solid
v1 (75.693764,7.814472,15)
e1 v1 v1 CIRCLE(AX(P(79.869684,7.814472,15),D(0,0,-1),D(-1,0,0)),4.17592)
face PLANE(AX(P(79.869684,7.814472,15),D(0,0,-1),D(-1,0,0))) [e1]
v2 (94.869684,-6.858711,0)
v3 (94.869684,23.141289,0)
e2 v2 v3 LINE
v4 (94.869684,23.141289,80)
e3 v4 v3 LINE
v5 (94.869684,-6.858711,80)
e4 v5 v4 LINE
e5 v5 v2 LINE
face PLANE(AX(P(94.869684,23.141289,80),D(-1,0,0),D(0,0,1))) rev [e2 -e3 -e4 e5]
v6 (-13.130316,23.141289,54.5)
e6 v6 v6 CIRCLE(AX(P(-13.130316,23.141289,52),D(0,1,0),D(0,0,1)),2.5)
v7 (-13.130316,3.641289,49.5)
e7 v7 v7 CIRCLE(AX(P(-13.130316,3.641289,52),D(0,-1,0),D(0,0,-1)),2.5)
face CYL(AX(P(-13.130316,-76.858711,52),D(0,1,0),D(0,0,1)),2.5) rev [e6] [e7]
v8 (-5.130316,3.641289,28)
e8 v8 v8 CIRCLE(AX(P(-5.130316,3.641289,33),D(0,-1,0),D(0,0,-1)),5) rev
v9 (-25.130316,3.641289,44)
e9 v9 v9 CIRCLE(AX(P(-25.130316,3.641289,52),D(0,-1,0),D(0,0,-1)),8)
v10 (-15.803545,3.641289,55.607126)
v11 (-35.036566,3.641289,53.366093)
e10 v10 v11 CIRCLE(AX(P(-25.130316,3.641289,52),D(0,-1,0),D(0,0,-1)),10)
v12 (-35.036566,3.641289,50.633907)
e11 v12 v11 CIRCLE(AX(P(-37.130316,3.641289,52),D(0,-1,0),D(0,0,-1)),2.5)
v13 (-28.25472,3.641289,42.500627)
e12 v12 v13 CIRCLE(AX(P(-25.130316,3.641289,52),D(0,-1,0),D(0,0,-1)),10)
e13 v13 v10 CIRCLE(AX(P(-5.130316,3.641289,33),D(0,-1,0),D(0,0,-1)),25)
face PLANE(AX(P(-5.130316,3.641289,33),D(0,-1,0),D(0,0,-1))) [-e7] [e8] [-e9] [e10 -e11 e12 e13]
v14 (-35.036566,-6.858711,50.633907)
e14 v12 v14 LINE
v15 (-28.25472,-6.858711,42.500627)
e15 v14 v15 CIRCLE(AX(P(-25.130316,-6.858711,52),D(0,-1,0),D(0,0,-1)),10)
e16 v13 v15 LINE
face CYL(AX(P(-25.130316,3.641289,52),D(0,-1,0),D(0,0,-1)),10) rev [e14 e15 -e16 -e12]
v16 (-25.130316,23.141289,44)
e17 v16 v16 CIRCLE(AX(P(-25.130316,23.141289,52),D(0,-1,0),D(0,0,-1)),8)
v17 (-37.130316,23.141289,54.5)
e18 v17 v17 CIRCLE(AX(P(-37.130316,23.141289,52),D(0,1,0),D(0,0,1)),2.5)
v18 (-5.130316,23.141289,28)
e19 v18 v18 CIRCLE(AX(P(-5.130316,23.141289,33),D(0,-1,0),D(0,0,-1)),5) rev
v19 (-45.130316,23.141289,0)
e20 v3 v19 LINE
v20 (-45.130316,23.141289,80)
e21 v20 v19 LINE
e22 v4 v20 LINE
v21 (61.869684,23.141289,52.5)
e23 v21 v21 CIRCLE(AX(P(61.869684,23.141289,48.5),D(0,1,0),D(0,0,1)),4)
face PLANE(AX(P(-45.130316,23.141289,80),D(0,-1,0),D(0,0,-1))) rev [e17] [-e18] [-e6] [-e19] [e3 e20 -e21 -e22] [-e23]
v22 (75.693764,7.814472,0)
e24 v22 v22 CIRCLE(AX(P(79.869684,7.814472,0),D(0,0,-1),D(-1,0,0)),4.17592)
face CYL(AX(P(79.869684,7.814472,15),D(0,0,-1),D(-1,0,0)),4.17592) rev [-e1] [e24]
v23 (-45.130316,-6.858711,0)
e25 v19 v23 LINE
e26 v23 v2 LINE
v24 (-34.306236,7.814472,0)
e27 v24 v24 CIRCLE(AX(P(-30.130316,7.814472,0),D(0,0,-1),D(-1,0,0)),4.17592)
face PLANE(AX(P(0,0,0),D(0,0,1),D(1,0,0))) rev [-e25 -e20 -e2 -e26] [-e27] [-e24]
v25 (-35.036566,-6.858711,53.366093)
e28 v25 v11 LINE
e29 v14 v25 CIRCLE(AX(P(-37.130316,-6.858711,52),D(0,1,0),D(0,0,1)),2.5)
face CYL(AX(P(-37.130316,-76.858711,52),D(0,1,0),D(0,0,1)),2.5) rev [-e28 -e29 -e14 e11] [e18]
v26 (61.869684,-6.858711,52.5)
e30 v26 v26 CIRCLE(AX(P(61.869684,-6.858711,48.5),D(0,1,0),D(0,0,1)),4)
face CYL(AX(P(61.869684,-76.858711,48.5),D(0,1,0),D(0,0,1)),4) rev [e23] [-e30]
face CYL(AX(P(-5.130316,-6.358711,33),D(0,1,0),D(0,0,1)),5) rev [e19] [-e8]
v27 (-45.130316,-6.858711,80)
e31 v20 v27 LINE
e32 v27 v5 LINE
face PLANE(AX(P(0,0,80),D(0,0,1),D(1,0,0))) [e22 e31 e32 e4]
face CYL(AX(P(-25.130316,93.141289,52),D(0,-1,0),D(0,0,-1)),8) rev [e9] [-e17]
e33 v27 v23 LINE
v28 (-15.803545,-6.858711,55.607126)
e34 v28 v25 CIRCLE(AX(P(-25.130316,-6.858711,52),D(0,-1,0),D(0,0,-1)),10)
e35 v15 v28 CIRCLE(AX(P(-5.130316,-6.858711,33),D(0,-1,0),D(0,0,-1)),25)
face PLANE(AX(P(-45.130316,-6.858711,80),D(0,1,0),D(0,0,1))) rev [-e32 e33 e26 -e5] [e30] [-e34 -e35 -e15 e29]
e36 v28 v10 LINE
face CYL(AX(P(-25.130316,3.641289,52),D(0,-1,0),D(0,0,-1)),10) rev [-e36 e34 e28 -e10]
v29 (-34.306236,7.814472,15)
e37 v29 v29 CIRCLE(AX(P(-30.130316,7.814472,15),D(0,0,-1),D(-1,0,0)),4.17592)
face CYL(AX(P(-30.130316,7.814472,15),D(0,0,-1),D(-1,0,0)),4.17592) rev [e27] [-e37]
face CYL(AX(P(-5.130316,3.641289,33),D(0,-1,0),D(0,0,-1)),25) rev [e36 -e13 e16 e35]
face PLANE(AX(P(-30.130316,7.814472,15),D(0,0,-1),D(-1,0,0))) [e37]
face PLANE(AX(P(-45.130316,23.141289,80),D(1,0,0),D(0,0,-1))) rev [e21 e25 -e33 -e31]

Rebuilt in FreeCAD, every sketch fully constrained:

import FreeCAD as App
import Part
import Sketcher
from FreeCAD import Vector
Q = App.Units.Quantity

doc = App.newDocument("Part")
body = doc.addObject("PartDesign::Body", "Body")

# Sketch on XY plane
sketch1 = body.newObject("Sketcher::SketchObject", "Sketch")
sketch1.AttachmentSupport = (doc.getObject("XY_Plane"), [""])
sketch1.MapMode = "FlatFace"
sketch1.addGeometry(Part.LineSegment(Vector(-45, 23, 0), Vector(-45, -7, 0)), False)
sketch1.addGeometry(Part.LineSegment(Vector(-45, -7, 0), Vector(95, -7, 0)), False)
sketch1.addGeometry(Part.LineSegment(Vector(95, -7, 0), Vector(95, 23, 0)), False)
sketch1.addGeometry(Part.LineSegment(Vector(95, 23, 0), Vector(-45, 23, 0)), False)
sketch1.addConstraint(Sketcher.Constraint("Coincident", 0, 2, 1, 1))
sketch1.addConstraint(Sketcher.Constraint("Coincident", 1, 2, 2, 1))
sketch1.addConstraint(Sketcher.Constraint("Coincident", 2, 2, 3, 1))
sketch1.addConstraint(Sketcher.Constraint("Coincident", 3, 2, 0, 1))
sketch1.addConstraint(Sketcher.Constraint("Vertical", 0))
sketch1.addConstraint(Sketcher.Constraint("Horizontal", 1))
sketch1.addConstraint(Sketcher.Constraint("Vertical", 2))
sketch1.addConstraint(Sketcher.Constraint("Horizontal", 3))
sketch1.addConstraint(Sketcher.Constraint("DistanceX", 1, 1, 1, 2, Q("140 mm")))
sketch1.addConstraint(Sketcher.Constraint("DistanceY", 0, 2, 0, 1, Q("30 mm")))
sketch1.addConstraint(Sketcher.Constraint("DistanceY", 0, 2, -1, 1, Q("6.858711 mm")))
sketch1.addConstraint(Sketcher.Constraint("DistanceX", 0, 2, -1, 1, Q("45.130316 mm")))
pad1 = body.newObject("PartDesign::Pad", "Pad")
pad1.Profile = sketch1
pad1.Length = 80

# Sketch on XY plane
sketch2 = body.newObject("Sketcher::SketchObject", "Sketch001")
sketch2.AttachmentSupport = (doc.getObject("XY_Plane"), [""])
sketch2.MapMode = "FlatFace"
sketch2.addGeometry(Part.Circle(Vector(-30.1, 7.8, 0), Vector(0, 0, 1), 4.2), False)
sketch2.addConstraint(Sketcher.Constraint("Diameter", 0, Q("8.35184 mm")))
sketch2.addConstraint(Sketcher.Constraint("DistanceY", -1, 1, 0, 3, Q("7.814472 mm")))
sketch2.addConstraint(Sketcher.Constraint("DistanceX", 0, 3, -1, 1, Q("30.130316 mm")))
pocket1 = body.newObject("PartDesign::Pocket", "Pocket")
pocket1.Profile = sketch2
pocket1.Length = 15
pocket1.Reversed = True
doc.recompute()

linearpattern = body.newObject("PartDesign::LinearPattern", "LinearPattern")
linearpattern.Originals = [pocket1]
linearpattern.Direction = (doc.getObject("X_Axis"), [""])
linearpattern.Mode = "offset"
linearpattern.Offset = 110
linearpattern.Occurrences = 4
body.Tip = linearpattern

# Sketch on XZ plane
sketch3 = body.newObject("Sketcher::SketchObject", "Sketch002")
sketch3.AttachmentSupport = (doc.getObject("XZ_Plane"), [""])
sketch3.MapMode = "FlatFace"
sketch3.AttachmentOffset = App.Placement(Vector(0, 0, 6.858711), App.Rotation())
sketch3.addGeometry(Part.Circle(Vector(-5, 33, 0), Vector(0, 0, 1), 25), False)
sketch3.addConstraint(Sketcher.Constraint("Diameter", 0, Q("50 mm")))
sketch3.addConstraint(Sketcher.Constraint("DistanceY", -1, 1, 0, 3, Q("33 mm")))
sketch3.addConstraint(Sketcher.Constraint("DistanceX", 0, 3, -1, 1, Q("5.130316 mm")))
pocket2 = body.newObject("PartDesign::Pocket", "Pocket001")
pocket2.Profile = sketch3
pocket2.Length = 10.5

# Sketch on XZ plane
sketch4 = body.newObject("Sketcher::SketchObject", "Sketch003")
sketch4.AttachmentSupport = (doc.getObject("XZ_Plane"), [""])
sketch4.MapMode = "FlatFace"
sketch4.AttachmentOffset = App.Placement(Vector(0, 0, -3.641289), App.Rotation())
sketch4.addGeometry(Part.Circle(Vector(-5, 33, 0), Vector(0, 0, 1), 5), False)
sketch4.addConstraint(Sketcher.Constraint("Diameter", 0, Q("10 mm")))
sketch4.addConstraint(Sketcher.Constraint("DistanceY", -1, 1, 0, 3, Q("33 mm")))
sketch4.addConstraint(Sketcher.Constraint("DistanceX", 0, 3, -1, 1, Q("5.130316 mm")))
pocket3 = body.newObject("PartDesign::Pocket", "Pocket002")
pocket3.Profile = sketch4
pocket3.Type = "ThroughAll"
pocket3.Midplane = True

# Sketch on XZ plane
sketch5 = body.newObject("Sketcher::SketchObject", "Sketch004")
sketch5.AttachmentSupport = (doc.getObject("XZ_Plane"), [""])
sketch5.MapMode = "FlatFace"
sketch5.AttachmentOffset = App.Placement(Vector(0, 0, 6.858711), App.Rotation())
sketch5.addGeometry(Part.Circle(Vector(-25, 52, 0), Vector(0, 0, 1), 8), False)
sketch5.addConstraint(Sketcher.Constraint("Diameter", 0, Q("16 mm")))
sketch5.addConstraint(Sketcher.Constraint("DistanceY", -1, 1, 0, 3, Q("52 mm")))
sketch5.addConstraint(Sketcher.Constraint("DistanceX", 0, 3, -1, 1, Q("25.130316 mm")))
pocket4 = body.newObject("PartDesign::Pocket", "Pocket003")
pocket4.Profile = sketch5
pocket4.Length = 100

# Sketch on XZ plane
sketch6 = body.newObject("Sketcher::SketchObject", "Sketch005")
sketch6.AttachmentSupport = (doc.getObject("XZ_Plane"), [""])
sketch6.MapMode = "FlatFace"
sketch6.AttachmentOffset = App.Placement(Vector(0, 0, 6.858711), App.Rotation())
sketch6.addGeometry(Part.Circle(Vector(-25, 52, 0), Vector(0, 0, 1), 10), False)
sketch6.addConstraint(Sketcher.Constraint("Diameter", 0, Q("20 mm")))
sketch6.addConstraint(Sketcher.Constraint("DistanceY", -1, 1, 0, 3, Q("52 mm")))
sketch6.addConstraint(Sketcher.Constraint("DistanceX", 0, 3, -1, 1, Q("25.130316 mm")))
pocket5 = body.newObject("PartDesign::Pocket", "Pocket004")
pocket5.Profile = sketch6
pocket5.Length = 10.5

# Sketch on XZ plane
sketch7 = body.newObject("Sketcher::SketchObject", "Sketch006")
sketch7.AttachmentSupport = (doc.getObject("XZ_Plane"), [""])
sketch7.MapMode = "FlatFace"
sketch7.AttachmentOffset = App.Placement(Vector(0, 0, -23.141289), App.Rotation())
sketch7.addGeometry(Part.Circle(Vector(-37.1, 52, 0), Vector(0, 0, 1), 2.5), False)
sketch7.addConstraint(Sketcher.Constraint("Diameter", 0, Q("5 mm")))
sketch7.addConstraint(Sketcher.Constraint("DistanceY", -1, 1, 0, 3, Q("52 mm")))
sketch7.addConstraint(Sketcher.Constraint("DistanceX", 0, 3, -1, 1, Q("37.130316 mm")))
pocket6 = body.newObject("PartDesign::Pocket", "Pocket005")
pocket6.Profile = sketch7
pocket6.Length = 100
pocket6.Reversed = True
doc.recompute()

linearpattern2 = body.newObject("PartDesign::LinearPattern", "LinearPattern001")
linearpattern2.Originals = [pocket6]
linearpattern2.Direction = (doc.getObject("X_Axis"), [""])
linearpattern2.Mode = "offset"
linearpattern2.Offset = 24
linearpattern2.Occurrences = 2
body.Tip = linearpattern2

# Sketch on XZ plane
sketch8 = body.newObject("Sketcher::SketchObject", "Sketch007")
sketch8.AttachmentSupport = (doc.getObject("XZ_Plane"), [""])
sketch8.MapMode = "FlatFace"
sketch8.AttachmentOffset = App.Placement(Vector(0, 0, -23.141289), App.Rotation())
sketch8.addGeometry(Part.Circle(Vector(61.9, 48.5, 0), Vector(0, 0, 1), 4), False)
sketch8.addConstraint(Sketcher.Constraint("Diameter", 0, Q("8 mm")))
sketch8.addConstraint(Sketcher.Constraint("DistanceY", -1, 1, 0, 3, Q("48.5 mm")))
sketch8.addConstraint(Sketcher.Constraint("DistanceX", -1, 1, 0, 3, Q("61.869684 mm")))
pocket7 = body.newObject("PartDesign::Pocket", "Pocket006")
pocket7.Profile = sketch8
pocket7.Length = 100
pocket7.Reversed = True

doc.recompute()
